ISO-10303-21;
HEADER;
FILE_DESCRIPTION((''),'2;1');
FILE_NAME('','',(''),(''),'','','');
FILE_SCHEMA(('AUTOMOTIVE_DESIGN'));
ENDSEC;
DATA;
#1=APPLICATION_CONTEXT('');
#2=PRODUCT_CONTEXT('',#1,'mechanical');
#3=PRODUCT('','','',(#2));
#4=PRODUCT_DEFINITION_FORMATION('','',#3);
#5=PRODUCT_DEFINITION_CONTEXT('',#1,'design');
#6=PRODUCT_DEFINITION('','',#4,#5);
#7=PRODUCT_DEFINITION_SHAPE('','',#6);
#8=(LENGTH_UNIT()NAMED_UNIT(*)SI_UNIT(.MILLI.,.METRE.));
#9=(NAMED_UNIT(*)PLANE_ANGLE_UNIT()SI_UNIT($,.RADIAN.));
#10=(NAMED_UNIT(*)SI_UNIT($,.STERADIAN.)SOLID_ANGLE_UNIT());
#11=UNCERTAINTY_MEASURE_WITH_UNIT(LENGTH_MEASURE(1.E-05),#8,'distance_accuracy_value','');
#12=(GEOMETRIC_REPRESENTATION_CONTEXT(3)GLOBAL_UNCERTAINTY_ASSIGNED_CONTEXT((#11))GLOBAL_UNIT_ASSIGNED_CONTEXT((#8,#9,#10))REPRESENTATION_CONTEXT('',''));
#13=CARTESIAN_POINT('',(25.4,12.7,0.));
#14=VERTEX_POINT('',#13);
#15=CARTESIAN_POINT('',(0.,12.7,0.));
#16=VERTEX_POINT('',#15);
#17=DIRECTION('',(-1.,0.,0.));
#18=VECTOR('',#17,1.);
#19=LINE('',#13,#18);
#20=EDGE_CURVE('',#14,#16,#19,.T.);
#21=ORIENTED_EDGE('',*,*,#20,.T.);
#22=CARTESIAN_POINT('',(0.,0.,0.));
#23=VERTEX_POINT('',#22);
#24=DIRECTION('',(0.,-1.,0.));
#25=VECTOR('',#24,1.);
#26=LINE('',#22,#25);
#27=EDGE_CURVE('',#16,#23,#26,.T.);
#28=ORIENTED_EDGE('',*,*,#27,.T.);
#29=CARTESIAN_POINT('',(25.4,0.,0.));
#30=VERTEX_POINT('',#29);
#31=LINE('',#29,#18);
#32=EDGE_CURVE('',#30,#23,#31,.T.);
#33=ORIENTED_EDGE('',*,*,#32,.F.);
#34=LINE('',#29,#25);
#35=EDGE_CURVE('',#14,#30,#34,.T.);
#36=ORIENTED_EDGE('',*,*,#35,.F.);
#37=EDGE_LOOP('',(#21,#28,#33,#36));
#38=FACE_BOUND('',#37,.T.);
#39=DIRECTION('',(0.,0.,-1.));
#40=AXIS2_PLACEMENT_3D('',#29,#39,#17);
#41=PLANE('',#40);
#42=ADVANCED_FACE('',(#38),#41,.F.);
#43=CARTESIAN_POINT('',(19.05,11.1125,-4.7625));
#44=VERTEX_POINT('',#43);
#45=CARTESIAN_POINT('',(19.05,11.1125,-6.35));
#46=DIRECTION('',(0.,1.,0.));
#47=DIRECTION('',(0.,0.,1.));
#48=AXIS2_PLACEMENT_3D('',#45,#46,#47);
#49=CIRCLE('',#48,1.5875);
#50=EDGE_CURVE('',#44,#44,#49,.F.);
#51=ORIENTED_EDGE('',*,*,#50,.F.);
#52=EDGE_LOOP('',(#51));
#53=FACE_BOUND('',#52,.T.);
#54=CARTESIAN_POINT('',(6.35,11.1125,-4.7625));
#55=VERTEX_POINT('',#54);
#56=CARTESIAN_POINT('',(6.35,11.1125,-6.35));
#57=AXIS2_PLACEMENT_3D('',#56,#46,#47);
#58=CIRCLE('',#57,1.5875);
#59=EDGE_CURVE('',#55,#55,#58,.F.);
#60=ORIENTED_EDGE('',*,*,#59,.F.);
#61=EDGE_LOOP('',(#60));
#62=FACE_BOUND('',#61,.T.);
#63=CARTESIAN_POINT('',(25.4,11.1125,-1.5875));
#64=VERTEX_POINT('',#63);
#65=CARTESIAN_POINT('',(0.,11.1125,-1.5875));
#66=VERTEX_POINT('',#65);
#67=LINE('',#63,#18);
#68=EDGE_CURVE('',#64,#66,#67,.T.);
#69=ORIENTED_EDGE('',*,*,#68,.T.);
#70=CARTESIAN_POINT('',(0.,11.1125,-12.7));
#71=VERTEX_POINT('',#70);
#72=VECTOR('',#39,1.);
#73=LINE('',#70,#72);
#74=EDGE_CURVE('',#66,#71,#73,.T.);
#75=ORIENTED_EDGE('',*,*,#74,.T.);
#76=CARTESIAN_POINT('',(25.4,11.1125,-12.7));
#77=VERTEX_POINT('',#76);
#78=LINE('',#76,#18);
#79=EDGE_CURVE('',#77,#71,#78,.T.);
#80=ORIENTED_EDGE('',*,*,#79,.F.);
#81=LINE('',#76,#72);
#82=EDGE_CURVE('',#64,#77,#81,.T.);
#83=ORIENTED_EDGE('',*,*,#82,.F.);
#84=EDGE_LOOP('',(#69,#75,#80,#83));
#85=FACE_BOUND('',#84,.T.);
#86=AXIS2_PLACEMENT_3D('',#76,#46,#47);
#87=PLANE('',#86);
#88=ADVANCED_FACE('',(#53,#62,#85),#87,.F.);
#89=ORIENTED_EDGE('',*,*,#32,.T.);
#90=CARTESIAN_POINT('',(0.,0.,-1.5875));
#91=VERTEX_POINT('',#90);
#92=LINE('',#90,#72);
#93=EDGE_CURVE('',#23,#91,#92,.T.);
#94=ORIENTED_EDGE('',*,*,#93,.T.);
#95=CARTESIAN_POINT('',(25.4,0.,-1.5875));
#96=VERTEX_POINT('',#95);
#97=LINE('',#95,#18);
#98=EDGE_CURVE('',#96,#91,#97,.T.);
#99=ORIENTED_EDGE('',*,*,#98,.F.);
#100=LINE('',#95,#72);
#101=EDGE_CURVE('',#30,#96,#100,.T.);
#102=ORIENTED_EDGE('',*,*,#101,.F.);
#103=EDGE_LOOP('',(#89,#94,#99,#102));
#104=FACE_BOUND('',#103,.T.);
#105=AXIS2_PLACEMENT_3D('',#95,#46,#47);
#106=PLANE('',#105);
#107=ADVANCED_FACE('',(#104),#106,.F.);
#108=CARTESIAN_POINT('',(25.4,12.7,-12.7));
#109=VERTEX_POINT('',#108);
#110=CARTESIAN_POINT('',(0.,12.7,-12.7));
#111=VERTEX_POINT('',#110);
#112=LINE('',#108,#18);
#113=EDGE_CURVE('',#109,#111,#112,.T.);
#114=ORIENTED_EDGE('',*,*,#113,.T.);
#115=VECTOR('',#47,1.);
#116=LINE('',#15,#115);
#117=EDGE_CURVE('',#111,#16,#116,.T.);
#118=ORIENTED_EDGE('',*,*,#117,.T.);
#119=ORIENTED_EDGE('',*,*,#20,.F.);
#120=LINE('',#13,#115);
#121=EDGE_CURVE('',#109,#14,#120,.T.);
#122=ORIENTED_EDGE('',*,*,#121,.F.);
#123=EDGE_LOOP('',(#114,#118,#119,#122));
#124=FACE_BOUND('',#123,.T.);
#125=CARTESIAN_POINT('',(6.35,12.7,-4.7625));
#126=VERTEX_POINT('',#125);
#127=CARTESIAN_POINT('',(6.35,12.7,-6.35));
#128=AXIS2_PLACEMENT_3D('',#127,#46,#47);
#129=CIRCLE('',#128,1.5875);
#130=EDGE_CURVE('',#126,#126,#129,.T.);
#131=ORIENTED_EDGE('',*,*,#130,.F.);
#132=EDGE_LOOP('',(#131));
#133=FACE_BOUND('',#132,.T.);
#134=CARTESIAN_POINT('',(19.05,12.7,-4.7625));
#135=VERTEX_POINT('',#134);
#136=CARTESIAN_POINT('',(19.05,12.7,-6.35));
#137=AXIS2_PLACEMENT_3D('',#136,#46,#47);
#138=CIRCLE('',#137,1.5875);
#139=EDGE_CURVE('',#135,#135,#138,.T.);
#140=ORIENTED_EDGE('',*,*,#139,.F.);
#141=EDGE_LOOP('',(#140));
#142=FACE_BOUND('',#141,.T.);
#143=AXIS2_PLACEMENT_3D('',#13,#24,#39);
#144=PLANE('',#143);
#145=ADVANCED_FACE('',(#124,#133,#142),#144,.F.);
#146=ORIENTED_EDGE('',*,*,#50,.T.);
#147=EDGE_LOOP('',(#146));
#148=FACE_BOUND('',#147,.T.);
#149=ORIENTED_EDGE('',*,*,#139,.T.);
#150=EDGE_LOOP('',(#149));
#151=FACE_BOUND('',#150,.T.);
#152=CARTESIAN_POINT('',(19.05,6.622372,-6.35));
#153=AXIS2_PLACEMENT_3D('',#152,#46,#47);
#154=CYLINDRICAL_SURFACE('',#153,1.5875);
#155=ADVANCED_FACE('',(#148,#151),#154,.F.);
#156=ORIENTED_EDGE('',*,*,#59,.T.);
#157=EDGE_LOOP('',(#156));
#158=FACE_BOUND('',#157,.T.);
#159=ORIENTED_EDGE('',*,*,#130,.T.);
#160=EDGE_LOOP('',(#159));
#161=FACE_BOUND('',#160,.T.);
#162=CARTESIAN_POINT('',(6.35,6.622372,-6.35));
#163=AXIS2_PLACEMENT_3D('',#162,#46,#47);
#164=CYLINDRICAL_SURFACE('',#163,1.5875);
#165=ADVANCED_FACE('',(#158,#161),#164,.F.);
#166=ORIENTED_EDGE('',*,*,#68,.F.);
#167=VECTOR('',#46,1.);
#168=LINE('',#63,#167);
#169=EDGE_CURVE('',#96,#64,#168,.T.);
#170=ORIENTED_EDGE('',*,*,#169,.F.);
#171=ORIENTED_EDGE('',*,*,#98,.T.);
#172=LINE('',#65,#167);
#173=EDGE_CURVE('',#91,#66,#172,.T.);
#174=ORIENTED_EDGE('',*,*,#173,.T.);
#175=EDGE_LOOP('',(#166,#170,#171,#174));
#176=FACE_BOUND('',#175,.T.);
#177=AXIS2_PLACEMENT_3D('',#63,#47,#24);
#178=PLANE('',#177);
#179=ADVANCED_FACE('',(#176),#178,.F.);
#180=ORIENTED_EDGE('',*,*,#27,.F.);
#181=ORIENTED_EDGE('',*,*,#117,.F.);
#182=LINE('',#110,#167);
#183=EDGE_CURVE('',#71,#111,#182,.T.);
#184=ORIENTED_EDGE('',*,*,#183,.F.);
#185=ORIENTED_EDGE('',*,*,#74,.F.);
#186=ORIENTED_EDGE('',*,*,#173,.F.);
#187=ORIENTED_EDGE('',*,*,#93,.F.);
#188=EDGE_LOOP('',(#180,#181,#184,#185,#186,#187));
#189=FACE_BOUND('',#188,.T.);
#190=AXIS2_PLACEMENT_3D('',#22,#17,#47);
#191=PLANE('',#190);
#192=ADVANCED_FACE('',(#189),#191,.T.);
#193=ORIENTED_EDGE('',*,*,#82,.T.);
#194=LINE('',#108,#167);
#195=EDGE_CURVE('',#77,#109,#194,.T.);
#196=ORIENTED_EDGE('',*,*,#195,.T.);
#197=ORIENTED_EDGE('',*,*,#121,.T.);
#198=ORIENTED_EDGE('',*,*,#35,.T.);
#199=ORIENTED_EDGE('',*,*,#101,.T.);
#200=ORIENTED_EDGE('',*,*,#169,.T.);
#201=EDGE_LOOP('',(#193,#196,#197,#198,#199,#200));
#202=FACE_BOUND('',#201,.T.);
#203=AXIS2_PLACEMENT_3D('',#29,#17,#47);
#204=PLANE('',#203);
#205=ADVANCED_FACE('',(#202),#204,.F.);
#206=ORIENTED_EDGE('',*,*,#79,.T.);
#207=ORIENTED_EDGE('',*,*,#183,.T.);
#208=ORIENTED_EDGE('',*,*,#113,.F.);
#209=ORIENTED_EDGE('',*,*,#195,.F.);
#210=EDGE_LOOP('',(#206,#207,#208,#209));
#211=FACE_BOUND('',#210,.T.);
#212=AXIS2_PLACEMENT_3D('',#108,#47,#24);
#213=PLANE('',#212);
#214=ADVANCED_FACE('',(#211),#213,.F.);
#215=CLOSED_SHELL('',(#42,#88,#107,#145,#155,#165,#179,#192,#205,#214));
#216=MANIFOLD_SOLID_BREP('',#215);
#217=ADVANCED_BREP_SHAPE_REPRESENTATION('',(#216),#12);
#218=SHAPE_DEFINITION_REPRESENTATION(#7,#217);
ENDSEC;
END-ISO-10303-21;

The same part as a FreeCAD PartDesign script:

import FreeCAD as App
import Part
import Sketcher
Q = App.Units.Quantity

doc = App.newDocument("Part")
body = doc.addObject("PartDesign::Body", "Body")

sketch1 = doc.addObject("Sketcher::SketchObject", "Sketch")
body.addObject(sketch1)
sketch1.AttachmentSupport = (doc.YZ_Plane, [""])
sketch1.MapMode = "FlatFace"
sketch1.addGeometry([
    Part.LineSegment(App.Vector(12.7, 0, 0), App.Vector(0, 0, 0)),
    Part.LineSegment(App.Vector(0, 0, 0), App.Vector(0, -1.6, 0)),
    Part.LineSegment(App.Vector(0, -1.6, 0), App.Vector(11.1, -1.6, 0)),
    Part.LineSegment(App.Vector(11.1, -1.6, 0), App.Vector(11.1, -12.7, 0)),
    Part.LineSegment(App.Vector(11.1, -12.7, 0), App.Vector(12.7, -12.7, 0)),
    Part.LineSegment(App.Vector(12.7, -12.7, 0), App.Vector(12.7, 0, 0)),
], False)
sketch1.addConstraint([
    Sketcher.Constraint("Coincident", 0, 2, 1, 1),
    Sketcher.Constraint("Coincident", 1, 2, 2, 1),
    Sketcher.Constraint("Coincident", 2, 2, 3, 1),
    Sketcher.Constraint("Coincident", 3, 2, 4, 1),
    Sketcher.Constraint("Coincident", 4, 2, 5, 1),
    Sketcher.Constraint("Coincident", 5, 2, 0, 1),
    Sketcher.Constraint("Horizontal", 0),
    Sketcher.Constraint("Vertical", 1),
    Sketcher.Constraint("Horizontal", 2),
    Sketcher.Constraint("Vertical", 3),
    Sketcher.Constraint("Horizontal", 4),
    Sketcher.Constraint("Vertical", 5),
    Sketcher.Constraint("Coincident", 0, 2, -1, 1),
    Sketcher.Constraint("Equal", 4, 1),
    Sketcher.Constraint("Equal", 2, 3),
    Sketcher.Constraint("DistanceX", 0, 2, 0, 1, Q("0.5 in")),
    Sketcher.Constraint("DistanceX", 2, 1, 2, 2, Q("0.4375 in")),
])
pad1 = doc.addObject("PartDesign::Pad", "Pad")
body.addObject(pad1)
pad1.Profile = sketch1
pad1.Length = Q("1 in")

sketch2 = doc.addObject("Sketcher::SketchObject", "Sketch001")
body.addObject(sketch2)
sketch2.AttachmentSupport = (doc.XZ_Plane, [""])
sketch2.MapMode = "FlatFace"
sketch2.AttachmentOffset = App.Placement(App.Vector(0, 0, -0.5 * 25.4), App.Rotation())
sketch2.addGeometry([
    Part.Circle(App.Vector(19.1, -6.3, 0), App.Vector(0, 0, 1), 1.6),
    Part.Circle(App.Vector(6.3, -6.3, 0), App.Vector(0, 0, 1), 1.6),
], False)
sketch2.addConstraint([
    Sketcher.Constraint("Equal", 0, 1),
    Sketcher.Constraint("Horizontal", 0, 3, 1, 3),
    Sketcher.Constraint("Diameter", 0, Q("0.125 in")),
    Sketcher.Constraint("DistanceX", 1, 3, 0, 3, Q("0.5 in")),
    Sketcher.Constraint("DistanceX", -1, 1, 0, 3, Q("0.75 in")),
    Sketcher.Constraint("DistanceY", 0, 3, -1, 1, Q("0.25 in")),
])
pocket1 = doc.addObject("PartDesign::Pocket", "Pocket")
body.addObject(pocket1)
pocket1.Profile = sketch2
pocket1.Length = 20.686644
pocket1.Reversed = True

doc.recompute()
